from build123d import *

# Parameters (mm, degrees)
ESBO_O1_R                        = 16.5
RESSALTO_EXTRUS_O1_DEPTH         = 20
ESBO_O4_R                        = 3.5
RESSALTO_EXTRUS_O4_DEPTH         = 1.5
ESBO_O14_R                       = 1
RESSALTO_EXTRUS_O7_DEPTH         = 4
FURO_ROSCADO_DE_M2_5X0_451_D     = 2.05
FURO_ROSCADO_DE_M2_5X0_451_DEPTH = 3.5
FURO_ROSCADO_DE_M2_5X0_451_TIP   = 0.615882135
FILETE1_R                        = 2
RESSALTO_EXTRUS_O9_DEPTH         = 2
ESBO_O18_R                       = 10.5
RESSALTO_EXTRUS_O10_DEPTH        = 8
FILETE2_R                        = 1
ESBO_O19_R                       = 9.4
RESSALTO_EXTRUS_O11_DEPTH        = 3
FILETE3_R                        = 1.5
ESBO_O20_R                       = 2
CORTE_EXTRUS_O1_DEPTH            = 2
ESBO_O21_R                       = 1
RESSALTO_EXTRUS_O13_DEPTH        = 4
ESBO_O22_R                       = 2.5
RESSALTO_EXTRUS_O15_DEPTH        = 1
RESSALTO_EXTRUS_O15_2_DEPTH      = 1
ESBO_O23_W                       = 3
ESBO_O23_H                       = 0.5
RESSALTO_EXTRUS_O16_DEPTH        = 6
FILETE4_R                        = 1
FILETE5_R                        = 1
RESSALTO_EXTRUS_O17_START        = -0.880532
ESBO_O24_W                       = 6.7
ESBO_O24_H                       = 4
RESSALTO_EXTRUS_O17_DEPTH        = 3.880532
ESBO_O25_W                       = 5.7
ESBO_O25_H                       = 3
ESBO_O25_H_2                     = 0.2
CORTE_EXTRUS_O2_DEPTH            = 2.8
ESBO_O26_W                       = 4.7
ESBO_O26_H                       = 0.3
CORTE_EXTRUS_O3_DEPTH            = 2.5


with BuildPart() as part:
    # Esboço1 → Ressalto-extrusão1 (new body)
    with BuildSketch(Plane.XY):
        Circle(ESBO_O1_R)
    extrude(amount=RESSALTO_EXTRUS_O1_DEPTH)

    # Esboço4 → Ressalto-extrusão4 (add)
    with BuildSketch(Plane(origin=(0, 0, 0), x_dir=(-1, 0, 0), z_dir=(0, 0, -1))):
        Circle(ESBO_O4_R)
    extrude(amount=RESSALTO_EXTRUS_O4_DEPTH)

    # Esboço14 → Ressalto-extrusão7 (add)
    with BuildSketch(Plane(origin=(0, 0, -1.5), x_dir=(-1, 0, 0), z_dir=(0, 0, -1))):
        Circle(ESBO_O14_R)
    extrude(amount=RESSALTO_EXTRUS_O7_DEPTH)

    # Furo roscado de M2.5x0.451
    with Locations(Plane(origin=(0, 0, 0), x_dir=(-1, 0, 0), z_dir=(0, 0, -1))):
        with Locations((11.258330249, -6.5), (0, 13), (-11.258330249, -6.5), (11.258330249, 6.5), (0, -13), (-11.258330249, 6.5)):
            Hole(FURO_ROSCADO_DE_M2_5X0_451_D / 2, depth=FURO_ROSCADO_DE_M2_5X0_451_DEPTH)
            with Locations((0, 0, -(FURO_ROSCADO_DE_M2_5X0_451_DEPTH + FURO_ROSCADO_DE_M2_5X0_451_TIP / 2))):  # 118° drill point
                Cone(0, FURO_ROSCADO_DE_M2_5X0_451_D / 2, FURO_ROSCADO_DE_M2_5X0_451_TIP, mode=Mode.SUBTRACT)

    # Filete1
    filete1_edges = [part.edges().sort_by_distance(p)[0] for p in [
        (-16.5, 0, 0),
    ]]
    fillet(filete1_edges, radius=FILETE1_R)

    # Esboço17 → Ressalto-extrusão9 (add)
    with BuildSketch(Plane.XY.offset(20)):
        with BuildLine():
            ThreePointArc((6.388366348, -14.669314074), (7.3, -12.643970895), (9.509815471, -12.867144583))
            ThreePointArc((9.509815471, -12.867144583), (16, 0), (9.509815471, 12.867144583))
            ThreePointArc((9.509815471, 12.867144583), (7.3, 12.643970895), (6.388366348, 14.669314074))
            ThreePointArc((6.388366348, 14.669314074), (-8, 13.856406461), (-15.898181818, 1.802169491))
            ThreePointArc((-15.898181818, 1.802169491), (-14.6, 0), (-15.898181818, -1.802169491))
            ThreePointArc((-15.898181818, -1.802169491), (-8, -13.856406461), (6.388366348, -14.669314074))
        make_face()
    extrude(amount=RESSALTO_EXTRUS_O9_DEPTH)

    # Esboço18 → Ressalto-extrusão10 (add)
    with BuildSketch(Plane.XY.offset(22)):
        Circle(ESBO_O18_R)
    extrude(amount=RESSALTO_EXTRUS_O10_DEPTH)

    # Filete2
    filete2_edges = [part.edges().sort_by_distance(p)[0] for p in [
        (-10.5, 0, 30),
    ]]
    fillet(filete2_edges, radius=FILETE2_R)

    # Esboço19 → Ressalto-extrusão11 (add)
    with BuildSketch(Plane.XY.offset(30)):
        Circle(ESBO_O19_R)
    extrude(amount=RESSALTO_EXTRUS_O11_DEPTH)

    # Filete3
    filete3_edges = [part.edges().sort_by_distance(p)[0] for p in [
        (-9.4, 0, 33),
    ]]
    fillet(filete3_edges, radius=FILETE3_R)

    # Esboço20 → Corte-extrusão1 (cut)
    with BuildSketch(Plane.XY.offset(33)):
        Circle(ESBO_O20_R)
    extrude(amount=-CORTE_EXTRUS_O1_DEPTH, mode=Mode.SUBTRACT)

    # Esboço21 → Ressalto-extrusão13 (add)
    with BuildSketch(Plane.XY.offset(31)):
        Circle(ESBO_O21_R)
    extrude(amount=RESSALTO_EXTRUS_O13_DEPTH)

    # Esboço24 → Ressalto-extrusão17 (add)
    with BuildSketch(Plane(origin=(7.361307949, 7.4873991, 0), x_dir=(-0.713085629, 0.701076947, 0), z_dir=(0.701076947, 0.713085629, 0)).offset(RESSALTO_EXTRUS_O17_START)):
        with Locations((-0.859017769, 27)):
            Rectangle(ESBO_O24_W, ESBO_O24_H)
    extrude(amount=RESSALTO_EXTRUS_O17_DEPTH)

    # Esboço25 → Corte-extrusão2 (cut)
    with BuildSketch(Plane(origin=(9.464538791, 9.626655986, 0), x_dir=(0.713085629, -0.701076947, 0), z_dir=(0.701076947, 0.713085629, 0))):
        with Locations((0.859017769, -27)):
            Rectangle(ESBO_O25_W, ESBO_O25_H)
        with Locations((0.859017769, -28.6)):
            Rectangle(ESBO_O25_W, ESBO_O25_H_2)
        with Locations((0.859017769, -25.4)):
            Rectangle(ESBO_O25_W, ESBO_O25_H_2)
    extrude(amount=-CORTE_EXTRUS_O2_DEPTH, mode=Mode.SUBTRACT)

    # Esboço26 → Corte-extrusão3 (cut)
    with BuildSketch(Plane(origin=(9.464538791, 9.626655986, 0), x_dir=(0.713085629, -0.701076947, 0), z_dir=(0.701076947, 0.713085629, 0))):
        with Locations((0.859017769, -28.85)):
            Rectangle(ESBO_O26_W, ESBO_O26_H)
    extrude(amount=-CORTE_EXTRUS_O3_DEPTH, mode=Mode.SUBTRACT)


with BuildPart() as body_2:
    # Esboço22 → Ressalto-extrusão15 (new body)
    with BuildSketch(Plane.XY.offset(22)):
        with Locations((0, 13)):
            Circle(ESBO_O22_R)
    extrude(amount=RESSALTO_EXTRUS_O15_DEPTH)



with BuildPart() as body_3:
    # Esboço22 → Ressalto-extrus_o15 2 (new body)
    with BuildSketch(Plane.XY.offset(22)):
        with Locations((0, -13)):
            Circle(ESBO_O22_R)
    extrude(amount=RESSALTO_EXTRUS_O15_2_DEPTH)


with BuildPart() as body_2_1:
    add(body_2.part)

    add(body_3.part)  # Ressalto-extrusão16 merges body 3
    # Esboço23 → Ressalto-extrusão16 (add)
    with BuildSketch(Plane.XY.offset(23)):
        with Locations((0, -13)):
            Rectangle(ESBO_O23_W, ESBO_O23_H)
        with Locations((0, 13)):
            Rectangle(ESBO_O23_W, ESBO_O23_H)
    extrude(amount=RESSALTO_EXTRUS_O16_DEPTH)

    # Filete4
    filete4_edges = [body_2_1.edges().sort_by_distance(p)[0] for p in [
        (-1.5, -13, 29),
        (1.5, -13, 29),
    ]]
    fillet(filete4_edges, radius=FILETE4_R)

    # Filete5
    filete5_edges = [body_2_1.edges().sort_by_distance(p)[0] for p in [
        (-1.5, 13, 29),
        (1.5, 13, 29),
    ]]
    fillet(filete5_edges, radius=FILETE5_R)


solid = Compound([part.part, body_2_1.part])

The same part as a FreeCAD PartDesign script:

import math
import FreeCAD as App
import Part
import Sketcher

V = App.Vector
Q = App.Units.Quantity


def edges_at(feature, points):
    """Names of the edges that pass closest to the given points."""
    edges = feature.Shape.Edges
    near = lambda p: min(range(len(edges)), key=lambda i: edges[i].distToShape(Part.Vertex(*p))[0])
    return sorted({f"Edge{near(p) + 1}" for p in points})


def add_polygon(sketch, points):
    """Adds a closed chain of lines whose ends are joined by coincident constraints."""
    first, n = sketch.GeometryCount, len(points)
    for a, b in zip(points, points[1:] + points[:1]):
        sketch.addGeometry(Part.LineSegment(App.Vector(*a, 0), App.Vector(*b, 0)), False)
    for i in range(n):
        sketch.addConstraint(Sketcher.Constraint("Coincident", first + i, 2, first + (i + 1) % n, 1))

doc = App.newDocument("Part")
body = doc.addObject("PartDesign::Body", "Body")

# Sketch on XY plane
sketch1 = body.newObject("Sketcher::SketchObject", "Sketch")
sketch1.AttachmentSupport = (doc.getObject("XY_Plane"), [""])
sketch1.MapMode = "FlatFace"
sketch1.addGeometry(Part.Circle(V(0, 0, 0), V(0, 0, 1), 16.5), False)
sketch1.addConstraint([
    Sketcher.Constraint("Coincident", 0, 3, -1, 1),
    Sketcher.Constraint("Diameter", 0, Q("33 mm")),
])
pad1 = body.newObject("PartDesign::Pad", "Pad")
pad1.Profile = sketch1
pad1.Length = 20

# Sketch on XY plane
sketch2 = body.newObject("Sketcher::SketchObject", "Sketch001")
sketch2.AttachmentSupport = (doc.getObject("XY_Plane"), [""])
sketch2.MapMode = "FlatFace"
sketch2.addGeometry(Part.Circle(V(0, 0, 0), V(0, 0, 1), 3.5), False)
sketch2.addConstraint([
    Sketcher.Constraint("Coincident", 0, 3, -1, 1),
    Sketcher.Constraint("Diameter", 0, Q("7 mm")),
])
pad2 = body.newObject("PartDesign::Pad", "Pad001")
pad2.Profile = sketch2
pad2.Length = 1.5
pad2.Reversed = True

# Sketch on XY plane
sketch3 = body.newObject("Sketcher::SketchObject", "Sketch002")
sketch3.AttachmentSupport = (doc.getObject("XY_Plane"), [""])
sketch3.MapMode = "FlatFace"
sketch3.AttachmentOffset = App.Placement(V(0, 0, -1.5), App.Rotation())
sketch3.addGeometry(Part.Circle(V(0, 0, 0), V(0, 0, 1), 1), False)
sketch3.addConstraint([
    Sketcher.Constraint("Coincident", 0, 3, -1, 1),
    Sketcher.Constraint("Diameter", 0, Q("2 mm")),
])
pad3 = body.newObject("PartDesign::Pad", "Pad002")
pad3.Profile = sketch3
pad3.Length = 4
pad3.Reversed = True

# Sketch on XY plane
sketch4 = body.newObject("Sketcher::SketchObject", "Sketch003")
sketch4.AttachmentSupport = (doc.getObject("XY_Plane"), [""])
sketch4.MapMode = "FlatFace"
sketch4.addGeometry([
    Part.Circle(V(-11.25833, -6.5, 0), V(0, 0, 1), 1.025),  # 0
    Part.Circle(V(0, 13, 0), V(0, 0, 1), 1.025),  # 1
    Part.Circle(V(11.25833, -6.5, 0), V(0, 0, 1), 1.025),  # 2
    Part.Circle(V(-11.25833, 6.5, 0), V(0, 0, 1), 1.025),  # 3
    Part.Circle(V(0, -13, 0), V(0, 0, 1), 1.025),  # 4
    Part.Circle(V(11.25833, 6.5, 0), V(0, 0, 1), 1.025),  # 5
], False)
sketch4.addConstraint([
    Sketcher.Constraint("Equal", 0, 1),
    Sketcher.Constraint("Equal", 1, 2),
    Sketcher.Constraint("Equal", 2, 3),
    Sketcher.Constraint("Equal", 3, 4),
    Sketcher.Constraint("Equal", 4, 5),
    Sketcher.Constraint("Symmetric", 2, 3, 3, 3, -1, 1),
    Sketcher.Constraint("Symmetric", 1, 3, 4, 3, -1, 1),
    Sketcher.Constraint("Symmetric", 0, 3, 5, 3, -1, 1),
    Sketcher.Constraint("Symmetric", 0, 3, 2, 3, -2),
    Sketcher.Constraint("PointOnObject", 1, 3, -2),
    Sketcher.Constraint("Diameter", 0, Q("2.05 mm")),
    Sketcher.Constraint("DistanceY", -1, 1, 1, 3, Q("13 mm")),
    Sketcher.Constraint("DistanceY", 0, 3, 3, 3, Q("13 mm")),
    Sketcher.Constraint("DistanceX", 0, 3, -1, 1, Q("11.25833 mm")),
])
doc.recompute()
hole = body.newObject("PartDesign::Hole", "Hole")
hole.Profile = sketch4
hole.ThreadType = "None"
hole.Diameter = 2.05
hole.DepthType = "Dimension"
hole.Depth = 3.5
hole.DrillPoint = "Angled"
hole.DrillPointAngle = 118
hole.Reversed = True
doc.recompute()

fillet = body.newObject("PartDesign::Fillet", "Fillet")
fillet.Base = (hole, edges_at(hole, [(-16.5, 0, 0)]))
fillet.Radius = 2

# Sketch on XY plane
sketch5 = body.newObject("Sketcher::SketchObject", "Sketch004")
sketch5.AttachmentSupport = (doc.getObject("XY_Plane"), [""])
sketch5.MapMode = "FlatFace"
sketch5.AttachmentOffset = App.Placement(V(0, 0, 20), App.Rotation())
sketch5.addGeometry([
    Part.ArcOfCircle(Part.Circle(V(8.25, -14.289419, 0), V(0, 0, 1), 1.9), math.radians(48.466275), math.radians(191.533725)),  # 0
    Part.ArcOfCircle(Part.Circle(V(0, 0, 0), V(0, 0, 1), 16), math.radians(-53.532732), math.radians(53.532732)),  # 1
    Part.ArcOfCircle(Part.Circle(V(8.25, 14.289419, 0), V(0, 0, 1), 1.9), math.radians(168.466275), math.radians(311.533725)),  # 2
    Part.ArcOfCircle(Part.Circle(V(0, 0, 0), V(0, 0, 1), 16), math.radians(66.467268), math.radians(173.532732)),  # 3
    Part.ArcOfCircle(Part.Circle(V(-16.5, 0, 0), V(0, 0, 1), 1.9), math.radians(-71.533725), math.radians(71.533725)),  # 4
    Part.ArcOfCircle(Part.Circle(V(0, 0, 0), V(0, 0, 1), 16), math.radians(-173.532732), math.radians(-66.467268)),  # 5
], False)
sketch5.addConstraint([
    Sketcher.Constraint("Coincident", 0, 1, 1, 1),
    Sketcher.Constraint("Coincident", 1, 2, 2, 2),
    Sketcher.Constraint("Coincident", 2, 1, 3, 1),
    Sketcher.Constraint("Coincident", 3, 2, 4, 2),
    Sketcher.Constraint("Coincident", 4, 1, 5, 1),
    Sketcher.Constraint("Coincident", 5, 2, 0, 2),
    Sketcher.Constraint("Coincident", 1, 3, -1, 1),
    Sketcher.Constraint("Coincident", 3, 3, -1, 1),
    Sketcher.Constraint("Coincident", 5, 3, -1, 1),
    Sketcher.Constraint("Equal", 0, 2),
    Sketcher.Constraint("Equal", 1, 3),
    Sketcher.Constraint("Equal", 2, 4),
    Sketcher.Constraint("Equal", 3, 5),
    Sketcher.Constraint("Symmetric", 0, 3, 2, 3, -1),
    Sketcher.Constraint("PointOnObject", 4, 3, -1),
    Sketcher.Constraint("Radius", 1, Q("16 mm")),
    Sketcher.Constraint("Radius", 0, Q("1.9 mm")),
    Sketcher.Constraint("DistanceX", 4, 3, -1, 1, Q("16.5 mm")),
    Sketcher.Constraint("DistanceX", -1, 1, 0, 3, Q("8.25 mm")),
    Sketcher.Constraint("DistanceY", 0, 3, -1, 1, Q("14.289419 mm")),
])
pad4 = body.newObject("PartDesign::Pad", "Pad003")
pad4.Profile = sketch5
pad4.Length = 2

# Sketch on XY plane
sketch6 = body.newObject("Sketcher::SketchObject", "Sketch005")
sketch6.AttachmentSupport = (doc.getObject("XY_Plane"), [""])
sketch6.MapMode = "FlatFace"
sketch6.AttachmentOffset = App.Placement(V(0, 0, 22), App.Rotation())
sketch6.addGeometry(Part.Circle(V(0, 0, 0), V(0, 0, 1), 10.5), False)
sketch6.addConstraint([
    Sketcher.Constraint("Coincident", 0, 3, -1, 1),
    Sketcher.Constraint("Diameter", 0, Q("21 mm")),
])
pad5 = body.newObject("PartDesign::Pad", "Pad004")
pad5.Profile = sketch6
pad5.Length = 8
doc.recompute()

fillet2 = body.newObject("PartDesign::Fillet", "Fillet001")
fillet2.Base = (pad5, edges_at(pad5, [(-10.5, 0, 30)]))
fillet2.Radius = 1

# Sketch on XY plane
sketch7 = body.newObject("Sketcher::SketchObject", "Sketch006")
sketch7.AttachmentSupport = (doc.getObject("XY_Plane"), [""])
sketch7.MapMode = "FlatFace"
sketch7.AttachmentOffset = App.Placement(V(0, 0, 30), App.Rotation())
sketch7.addGeometry(Part.Circle(V(0, 0, 0), V(0, 0, 1), 9.4), False)
sketch7.addConstraint([
    Sketcher.Constraint("Coincident", 0, 3, -1, 1),
    Sketcher.Constraint("Diameter", 0, Q("18.8 mm")),
])
pad6 = body.newObject("PartDesign::Pad", "Pad005")
pad6.Profile = sketch7
pad6.Length = 3
doc.recompute()

fillet3 = body.newObject("PartDesign::Fillet", "Fillet002")
fillet3.Base = (pad6, edges_at(pad6, [(-9.4, 0, 33)]))
fillet3.Radius = 1.5

# Sketch on XY plane
sketch8 = body.newObject("Sketcher::SketchObject", "Sketch007")
sketch8.AttachmentSupport = (doc.getObject("XY_Plane"), [""])
sketch8.MapMode = "FlatFace"
sketch8.AttachmentOffset = App.Placement(V(0, 0, 33), App.Rotation())
sketch8.addGeometry(Part.Circle(V(0, 0, 0), V(0, 0, 1), 2), False)
sketch8.addConstraint([
    Sketcher.Constraint("Coincident", 0, 3, -1, 1),
    Sketcher.Constraint("Diameter", 0, Q("4 mm")),
])
pocket1 = body.newObject("PartDesign::Pocket", "Pocket")
pocket1.Profile = sketch8
pocket1.Length = 2

# Sketch on XY plane
sketch9 = body.newObject("Sketcher::SketchObject", "Sketch008")
sketch9.AttachmentSupport = (doc.getObject("XY_Plane"), [""])
sketch9.MapMode = "FlatFace"
sketch9.AttachmentOffset = App.Placement(V(0, 0, 31), App.Rotation())
sketch9.addGeometry(Part.Circle(V(0, 0, 0), V(0, 0, 1), 1), False)
sketch9.addConstraint([
    Sketcher.Constraint("Coincident", 0, 3, -1, 1),
    Sketcher.Constraint("Diameter", 0, Q("2 mm")),
])
pad7 = body.newObject("PartDesign::Pad", "Pad006")
pad7.Profile = sketch9
pad7.Length = 4

# Sketch on an angled plane
sketch10 = body.newObject("Sketcher::SketchObject", "Sketch009")
sketch10.Placement = App.Placement(V(6.743987, 6.859504, 0), App.Rotation(V(-0.713085629, 0.701076947, 0), V(0, 0, 1), V(0.701076947, 0.713085629, 0), "ZXY"))
add_polygon(sketch10, [(-4.209018, 29), (-4.209018, 25), (2.490982, 25), (2.490982, 29)])  # lines 0-3
sketch10.addConstraint([
    Sketcher.Constraint("Vertical", 0),
    Sketcher.Constraint("Horizontal", 1),
    Sketcher.Constraint("Vertical", 2),
    Sketcher.Constraint("Horizontal", 3),
    Sketcher.Constraint("DistanceY", 0, 2, 0, 1, Q("4 mm")),
    Sketcher.Constraint("DistanceX", 1, 1, 1, 2, Q("6.7 mm")),
    Sketcher.Constraint("DistanceY", -1, 1, 0, 2, Q("25 mm")),
    Sketcher.Constraint("DistanceX", 0, 2, -1, 1, Q("4.209018 mm")),
])
pad8 = body.newObject("PartDesign::Pad", "Pad007")
pad8.Profile = sketch10
pad8.Length = 3.880532

# Sketch on an angled plane
sketch11 = body.newObject("Sketcher::SketchObject", "Sketch010")
sketch11.Placement = App.Placement(V(9.464539, 9.626656, 0), App.Rotation(V(0.713085629, -0.701076947, 0), V(0, 0, -1), V(0.701076947, 0.713085629, 0), "ZXY"))
add_polygon(sketch11, [(-1.990982, -28.7), (3.709018, -28.7), (3.709018, -25.3), (-1.990982, -25.3)])  # lines 0-3
sketch11.addConstraint([
    Sketcher.Constraint("Horizontal", 0),
    Sketcher.Constraint("Vertical", 1),
    Sketcher.Constraint("Horizontal", 2),
    Sketcher.Constraint("Vertical", 3),
    Sketcher.Constraint("DistanceX", 0, 1, 0, 2, Q("5.7 mm")),
    Sketcher.Constraint("DistanceY", 1, 1, 1, 2, Q("3.4 mm")),
    Sketcher.Constraint("DistanceY", 0, 2, -1, 1, Q("28.7 mm")),
    Sketcher.Constraint("DistanceX", -1, 1, 0, 2, Q("3.709018 mm")),
])
pocket2 = body.newObject("PartDesign::Pocket", "Pocket001")
pocket2.Profile = sketch11
pocket2.Length = 2.8

# Sketch on an angled plane
sketch12 = body.newObject("Sketcher::SketchObject", "Sketch011")
sketch12.Placement = App.Placement(V(9.464539, 9.626656, 0), App.Rotation(V(0.713085629, -0.701076947, 0), V(0, 0, -1), V(0.701076947, 0.713085629, 0), "ZXY"))
add_polygon(sketch12, [(-1.490982, -28.7), (-1.490982, -29), (3.209018, -29), (3.209018, -28.7)])  # lines 0-3
sketch12.addConstraint([
    Sketcher.Constraint("Vertical", 0),
    Sketcher.Constraint("Horizontal", 1),
    Sketcher.Constraint("Vertical", 2),
    Sketcher.Constraint("Horizontal", 3),
    Sketcher.Constraint("DistanceX", 1, 1, 1, 2, Q("4.7 mm")),
    Sketcher.Constraint("DistanceY", 0, 2, 0, 1, Q("0.3 mm")),
    Sketcher.Constraint("DistanceY", 0, 2, -1, 1, Q("29 mm")),
    Sketcher.Constraint("DistanceX", 0, 2, -1, 1, Q("1.490982 mm")),
])
pocket3 = body.newObject("PartDesign::Pocket", "Pocket002")
pocket3.Profile = sketch12
pocket3.Length = 2.5
body2 = doc.addObject("PartDesign::Body", "Body001")

# Sketch on XY plane
sketch13 = body2.newObject("Sketcher::SketchObject", "Sketch012")
sketch13.AttachmentSupport = (doc.getObject("XY_Plane001"), [""])
sketch13.MapMode = "FlatFace"
sketch13.AttachmentOffset = App.Placement(V(0, 0, 22), App.Rotation())
sketch13.addGeometry(Part.Circle(V(0, 13, 0), V(0, 0, 1), 2.5), False)
sketch13.addConstraint([
    Sketcher.Constraint("PointOnObject", 0, 3, -2),
    Sketcher.Constraint("Diameter", 0, Q("5 mm")),
    Sketcher.Constraint("DistanceY", -1, 1, 0, 3, Q("13 mm")),
])
pad9 = body2.newObject("PartDesign::Pad", "Pad008")
pad9.Profile = sketch13
pad9.Length = 1
body3 = doc.addObject("PartDesign::Body", "Body002")

# Sketch on XY plane
sketch14 = body3.newObject("Sketcher::SketchObject", "Sketch013")
sketch14.AttachmentSupport = (doc.getObject("XY_Plane002"), [""])
sketch14.MapMode = "FlatFace"
sketch14.AttachmentOffset = App.Placement(V(0, 0, 22), App.Rotation())
sketch14.addGeometry(Part.Circle(V(0, -13, 0), V(0, 0, 1), 2.5), False)
sketch14.addConstraint([
    Sketcher.Constraint("PointOnObject", 0, 3, -2),
    Sketcher.Constraint("Diameter", 0, Q("5 mm")),
    Sketcher.Constraint("DistanceY", 0, 3, -1, 1, Q("13 mm")),
])
pad10 = body3.newObject("PartDesign::Pad", "Pad009")
pad10.Profile = sketch14
pad10.Length = 1
body2.AllowCompound = True
doc.recompute()

boolean = body2.newObject("PartDesign::Boolean", "Boolean")
boolean.Type = "Fuse"
boolean.addObjects([body3])

# Sketch on XY plane
sketch15 = body2.newObject("Sketcher::SketchObject", "Sketch014")
sketch15.AttachmentSupport = (doc.getObject("XY_Plane001"), [""])
sketch15.MapMode = "FlatFace"
sketch15.AttachmentOffset = App.Placement(V(0, 0, 23), App.Rotation())
add_polygon(sketch15, [(-1.5, -12.75), (-1.5, -13.25), (1.5, -13.25), (1.5, -12.75)])  # lines 0-3
add_polygon(sketch15, [(-1.5, 13.25), (-1.5, 12.75), (1.5, 12.75), (1.5, 13.25)])  # lines 4-7
sketch15.addConstraint([
    Sketcher.Constraint("Vertical", 0),
    Sketcher.Constraint("Horizontal", 1),
    Sketcher.Constraint("Vertical", 2),
    Sketcher.Constraint("Horizontal", 3),
    Sketcher.Constraint("Vertical", 4),
    Sketcher.Constraint("Horizontal", 5),
    Sketcher.Constraint("Vertical", 6),
    Sketcher.Constraint("Horizontal", 7),
    Sketcher.Constraint("Symmetric", 2, 2, 4, 2, -1, 1),
    Sketcher.Constraint("Symmetric", 0, 2, 6, 2, -1, 1),
    Sketcher.Constraint("Vertical", 3, 2, 4, 2),
    Sketcher.Constraint("DistanceX", 1, 1, 1, 2, Q("3 mm")),
    Sketcher.Constraint("DistanceY", 0, 2, 0, 1, Q("0.5 mm")),
    Sketcher.Constraint("DistanceY", 0, 2, 4, 2, Q("26 mm")),
])
pad11 = body2.newObject("PartDesign::Pad", "Pad010")
pad11.Profile = sketch15
pad11.Length = 6
doc.recompute()

fillet4 = body2.newObject("PartDesign::Fillet", "Fillet003")
fillet4.Base = (pad11, edges_at(pad11, [(-1.5, -13, 29), (1.5, -13, 29)]))
fillet4.Radius = 1
doc.recompute()

fillet5 = body2.newObject("PartDesign::Fillet", "Fillet004")
fillet5.Base = (fillet4, edges_at(fillet4, [(-1.5, 13, 29), (1.5, 13, 29)]))
fillet5.Radius = 1

doc.recompute()
